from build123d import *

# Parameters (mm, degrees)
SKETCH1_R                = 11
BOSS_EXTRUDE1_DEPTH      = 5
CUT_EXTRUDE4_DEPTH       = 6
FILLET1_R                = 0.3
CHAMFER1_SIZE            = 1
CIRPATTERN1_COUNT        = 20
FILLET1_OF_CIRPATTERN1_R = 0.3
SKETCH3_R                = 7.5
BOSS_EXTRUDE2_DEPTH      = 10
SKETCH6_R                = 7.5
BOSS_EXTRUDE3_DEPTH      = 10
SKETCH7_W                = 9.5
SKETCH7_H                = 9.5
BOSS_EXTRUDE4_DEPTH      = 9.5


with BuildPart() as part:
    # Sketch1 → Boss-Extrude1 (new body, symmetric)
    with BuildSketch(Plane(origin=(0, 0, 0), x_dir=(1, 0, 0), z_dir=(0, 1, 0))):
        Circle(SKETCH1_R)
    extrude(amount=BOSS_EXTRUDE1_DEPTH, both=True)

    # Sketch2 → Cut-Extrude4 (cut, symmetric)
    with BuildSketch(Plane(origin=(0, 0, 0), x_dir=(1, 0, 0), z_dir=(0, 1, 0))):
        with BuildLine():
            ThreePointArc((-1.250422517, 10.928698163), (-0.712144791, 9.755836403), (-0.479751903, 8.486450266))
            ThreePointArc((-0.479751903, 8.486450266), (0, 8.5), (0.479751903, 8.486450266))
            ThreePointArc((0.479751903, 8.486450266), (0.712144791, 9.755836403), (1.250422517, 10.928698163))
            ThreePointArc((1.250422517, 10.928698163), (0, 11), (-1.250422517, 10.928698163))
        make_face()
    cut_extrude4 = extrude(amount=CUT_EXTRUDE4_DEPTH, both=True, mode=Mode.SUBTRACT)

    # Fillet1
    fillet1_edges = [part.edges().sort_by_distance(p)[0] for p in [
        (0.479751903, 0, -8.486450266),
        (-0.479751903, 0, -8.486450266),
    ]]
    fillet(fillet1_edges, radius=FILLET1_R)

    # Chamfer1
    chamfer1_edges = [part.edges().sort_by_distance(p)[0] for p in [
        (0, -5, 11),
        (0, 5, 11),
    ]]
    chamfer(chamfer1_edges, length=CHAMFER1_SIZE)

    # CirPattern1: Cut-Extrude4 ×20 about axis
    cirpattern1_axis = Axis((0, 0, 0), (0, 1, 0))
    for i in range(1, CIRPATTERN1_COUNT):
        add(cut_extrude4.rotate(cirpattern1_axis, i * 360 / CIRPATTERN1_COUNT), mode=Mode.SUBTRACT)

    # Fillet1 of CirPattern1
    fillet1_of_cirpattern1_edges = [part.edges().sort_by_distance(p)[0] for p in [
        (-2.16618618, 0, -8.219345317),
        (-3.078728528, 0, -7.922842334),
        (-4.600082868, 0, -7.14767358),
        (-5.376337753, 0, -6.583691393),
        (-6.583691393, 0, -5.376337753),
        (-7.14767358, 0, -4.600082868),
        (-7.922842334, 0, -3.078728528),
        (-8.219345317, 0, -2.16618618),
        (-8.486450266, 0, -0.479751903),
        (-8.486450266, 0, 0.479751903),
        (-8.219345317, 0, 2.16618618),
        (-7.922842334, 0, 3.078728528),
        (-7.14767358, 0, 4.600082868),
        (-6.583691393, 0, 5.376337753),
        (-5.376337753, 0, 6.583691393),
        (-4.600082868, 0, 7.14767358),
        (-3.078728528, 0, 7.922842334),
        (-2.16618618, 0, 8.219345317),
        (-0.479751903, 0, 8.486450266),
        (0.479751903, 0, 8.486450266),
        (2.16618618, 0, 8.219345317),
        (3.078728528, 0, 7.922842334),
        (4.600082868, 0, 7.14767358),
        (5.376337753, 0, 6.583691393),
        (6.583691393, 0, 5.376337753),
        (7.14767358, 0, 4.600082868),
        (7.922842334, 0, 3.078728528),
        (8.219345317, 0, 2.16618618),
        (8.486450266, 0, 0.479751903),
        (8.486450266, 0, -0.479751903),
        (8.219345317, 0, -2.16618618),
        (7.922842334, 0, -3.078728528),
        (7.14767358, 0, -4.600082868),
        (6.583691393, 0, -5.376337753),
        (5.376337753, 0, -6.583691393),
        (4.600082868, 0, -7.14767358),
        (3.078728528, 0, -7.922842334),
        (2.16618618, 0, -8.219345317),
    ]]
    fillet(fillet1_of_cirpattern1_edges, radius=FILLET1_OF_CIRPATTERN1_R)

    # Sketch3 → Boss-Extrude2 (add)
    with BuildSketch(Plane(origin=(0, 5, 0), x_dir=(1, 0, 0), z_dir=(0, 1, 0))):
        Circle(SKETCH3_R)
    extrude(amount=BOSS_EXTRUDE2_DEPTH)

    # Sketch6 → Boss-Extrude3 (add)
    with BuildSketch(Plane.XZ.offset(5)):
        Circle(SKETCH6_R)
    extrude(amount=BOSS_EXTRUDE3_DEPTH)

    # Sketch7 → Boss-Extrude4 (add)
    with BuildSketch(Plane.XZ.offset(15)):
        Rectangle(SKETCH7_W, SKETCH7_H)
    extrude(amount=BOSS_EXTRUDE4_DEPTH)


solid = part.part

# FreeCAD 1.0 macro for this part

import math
import FreeCAD as App
import Part
import Sketcher
from FreeCAD import Vector


def edges_at(feature, points):
    """Names of the edges that pass closest to the given points."""
    edges = feature.Shape.Edges
    near = lambda p: min(range(len(edges)), key=lambda i: edges[i].distToShape(Part.Vertex(*p))[0])
    return sorted({f"Edge{near(p) + 1}" for p in points})

doc = App.newDocument("Part")
body = doc.addObject("PartDesign::Body", "Body")

# Sketch on XZ plane
sketch1 = body.newObject("Sketcher::SketchObject", "Sketch")
sketch1.AttachmentSupport = (doc.getObject("XZ_Plane"), [""])
sketch1.MapMode = "FlatFace"
sketch1.addGeometry(Part.Circle(Vector(0, 0, 0), Vector(0, 0, 1), 11), False)
sketch1.addConstraint([
    Sketcher.Constraint("Coincident", 0, 3, -1, 1),
    Sketcher.Constraint("Diameter", 0, 22.0),
])
pad1 = body.newObject("PartDesign::Pad", "Pad")
pad1.Profile = sketch1
pad1.Length = 10
pad1.Midplane = True

# Sketch on XZ plane
sketch2 = body.newObject("Sketcher::SketchObject", "Sketch001")
sketch2.AttachmentSupport = (doc.getObject("XZ_Plane"), [""])
sketch2.MapMode = "FlatFace"
sketch2.addGeometry([
    Part.ArcOfCircle(Part.Circle(Vector(-5.663469, -8.193407, 0), Vector(0, 0, 1), 5.191994), math.radians(-31.791431), math.radians(-3.235573)),
    Part.ArcOfCircle(Part.Circle(Vector(0, 0, 0), Vector(0, 0, 1), 8.5), math.radians(-93.235573), math.radians(-86.764427)),
    Part.ArcOfCircle(Part.Circle(Vector(5.663469, -8.193407, 0), Vector(0, 0, 1), 5.191994), math.radians(-176.764427), math.radians(-148.208569)),
    Part.ArcOfCircle(Part.Circle(Vector(0, 0, 0), Vector(0, 0, 1), 11), math.radians(-96.527194), math.radians(-83.472806)),
], False)
sketch2.addConstraint([
    Sketcher.Constraint("Coincident", 0, 2, 1, 1),
    Sketcher.Constraint("Coincident", 1, 2, 2, 1),
    Sketcher.Constraint("Coincident", 2, 2, 3, 2),
    Sketcher.Constraint("Coincident", 3, 1, 0, 1),
    Sketcher.Constraint("Coincident", 1, 3, -1, 1),
    Sketcher.Constraint("Coincident", 3, 3, -1, 1),
    Sketcher.Constraint("Equal", 0, 2),
    Sketcher.Constraint("Symmetric", 0, 3, 2, 3, -2),
    Sketcher.Constraint("Radius", 3, 11.0),
    Sketcher.Constraint("Radius", 1, 8.5),
    Sketcher.Constraint("Radius", 0, 5.191994),
    Sketcher.Constraint("DistanceY", 2, 2, -1, 1, 10.928698),
    Sketcher.Constraint("DistanceX", 0, 3, -1, 1, 5.663469),
])
pocket1 = body.newObject("PartDesign::Pocket", "Pocket")
pocket1.Profile = sketch2
pocket1.Length = 12
pocket1.Midplane = True
doc.recompute()

fillet = body.newObject("PartDesign::Fillet", "Fillet")
fillet.Base = (pocket1, edges_at(pocket1, [(0.48, 0, -8.486), (-0.48, 0, -8.486)]))
fillet.Radius = 0.3
doc.recompute()

chamfer = body.newObject("PartDesign::Chamfer", "Chamfer")
chamfer.Base = (fillet, edges_at(fillet, [(0, -5, 11), (0, 5, 11)]))
chamfer.Size = 1
doc.recompute()

polarpattern = body.newObject("PartDesign::PolarPattern", "PolarPattern")
polarpattern.Originals = [pocket1]
polarpattern.Axis = (doc.getObject("Y_Axis"), [""])
polarpattern.Angle = 360
polarpattern.Occurrences = 20
body.Tip = polarpattern
doc.recompute()

fillet2 = body.newObject("PartDesign::Fillet", "Fillet001")
fillet2.Base = (polarpattern, edges_at(polarpattern, [
    (-2.166, 0, -8.219),
    (-3.079, 0, -7.923),
    (-4.6, 0, -7.148),
    (-5.376, 0, -6.584),
    (-6.584, 0, -5.376),
    (-7.148, 0, -4.6),
    (-7.923, 0, -3.079),
    (-8.219, 0, -2.166),
    (-8.486, 0, -0.48),
    (-8.486, 0, 0.48),
    (-8.219, 0, 2.166),
    (-7.923, 0, 3.079),
    (-7.148, 0, 4.6),
    (-6.584, 0, 5.376),
    (-5.376, 0, 6.584),
    (-4.6, 0, 7.148),
    (-3.079, 0, 7.923),
    (-2.166, 0, 8.219),
    (-0.48, 0, 8.486),
    (0.48, 0, 8.486),
    (2.166, 0, 8.219),
    (3.079, 0, 7.923),
    (4.6, 0, 7.148),
    (5.376, 0, 6.584),
    (6.584, 0, 5.376),
    (7.148, 0, 4.6),
    (7.923, 0, 3.079),
    (8.219, 0, 2.166),
    (8.486, 0, 0.48),
    (8.486, 0, -0.48),
    (8.219, 0, -2.166),
    (7.923, 0, -3.079),
    (7.148, 0, -4.6),
    (6.584, 0, -5.376),
    (5.376, 0, -6.584),
    (4.6, 0, -7.148),
    (3.079, 0, -7.923),
    (2.166, 0, -8.219),
]))
fillet2.Radius = 0.3

# Sketch on XZ plane
sketch3 = body.newObject("Sketcher::SketchObject", "Sketch002")
sketch3.AttachmentSupport = (doc.getObject("XZ_Plane"), [""])
sketch3.MapMode = "FlatFace"
sketch3.AttachmentOffset = App.Placement(Vector(0, 0, -5), App.Rotation())
sketch3.addGeometry(Part.Circle(Vector(0, 0, 0), Vector(0, 0, 1), 7.5), False)
sketch3.addConstraint([
    Sketcher.Constraint("Coincident", 0, 3, -1, 1),
    Sketcher.Constraint("Diameter", 0, 15.0),
])
pad2 = body.newObject("PartDesign::Pad", "Pad001")
pad2.Profile = sketch3
pad2.Length = 10
pad2.Reversed = True

# Sketch on XZ plane
sketch4 = body.newObject("Sketcher::SketchObject", "Sketch003")
sketch4.AttachmentSupport = (doc.getObject("XZ_Plane"), [""])
sketch4.MapMode = "FlatFace"
sketch4.AttachmentOffset = App.Placement(Vector(0, 0, 5), App.Rotation())
sketch4.addGeometry(Part.Circle(Vector(0, 0, 0), Vector(0, 0, 1), 7.5), False)
sketch4.addConstraint([
    Sketcher.Constraint("Coincident", 0, 3, -1, 1),
    Sketcher.Constraint("Diameter", 0, 15.0),
])
pad3 = body.newObject("PartDesign::Pad", "Pad002")
pad3.Profile = sketch4
pad3.Length = 10

# Sketch on XZ plane
sketch5 = body.newObject("Sketcher::SketchObject", "Sketch004")
sketch5.AttachmentSupport = (doc.getObject("XZ_Plane"), [""])
sketch5.MapMode = "FlatFace"
sketch5.AttachmentOffset = App.Placement(Vector(0, 0, 15), App.Rotation())
sketch5.addGeometry([
    Part.LineSegment(Vector(-4.75, 4.75, 0), Vector(-4.75, -4.75, 0)),
    Part.LineSegment(Vector(-4.75, -4.75, 0), Vector(4.75, -4.75, 0)),
    Part.LineSegment(Vector(4.75, -4.75, 0), Vector(4.75, 4.75, 0)),
    Part.LineSegment(Vector(4.75, 4.75, 0), Vector(-4.75, 4.75, 0)),
], False)
sketch5.addConstraint([
    Sketcher.Constraint("Coincident", 0, 2, 1, 1),
    Sketcher.Constraint("Coincident", 1, 2, 2, 1),
    Sketcher.Constraint("Coincident", 2, 2, 3, 1),
    Sketcher.Constraint("Coincident", 3, 2, 0, 1),
    Sketcher.Constraint("Vertical", 0),
    Sketcher.Constraint("Horizontal", 1),
    Sketcher.Constraint("Vertical", 2),
    Sketcher.Constraint("Horizontal", 3),
    Sketcher.Constraint("Symmetric", 0, 2, 2, 2, -1, 1),
    Sketcher.Constraint("Equal", 3, 0),
    Sketcher.Constraint("DistanceX", 1, 1, 1, 2, 9.5),
])
pad4 = body.newObject("PartDesign::Pad", "Pad003")
pad4.Profile = sketch5
pad4.Length = 9.5

doc.recompute()
